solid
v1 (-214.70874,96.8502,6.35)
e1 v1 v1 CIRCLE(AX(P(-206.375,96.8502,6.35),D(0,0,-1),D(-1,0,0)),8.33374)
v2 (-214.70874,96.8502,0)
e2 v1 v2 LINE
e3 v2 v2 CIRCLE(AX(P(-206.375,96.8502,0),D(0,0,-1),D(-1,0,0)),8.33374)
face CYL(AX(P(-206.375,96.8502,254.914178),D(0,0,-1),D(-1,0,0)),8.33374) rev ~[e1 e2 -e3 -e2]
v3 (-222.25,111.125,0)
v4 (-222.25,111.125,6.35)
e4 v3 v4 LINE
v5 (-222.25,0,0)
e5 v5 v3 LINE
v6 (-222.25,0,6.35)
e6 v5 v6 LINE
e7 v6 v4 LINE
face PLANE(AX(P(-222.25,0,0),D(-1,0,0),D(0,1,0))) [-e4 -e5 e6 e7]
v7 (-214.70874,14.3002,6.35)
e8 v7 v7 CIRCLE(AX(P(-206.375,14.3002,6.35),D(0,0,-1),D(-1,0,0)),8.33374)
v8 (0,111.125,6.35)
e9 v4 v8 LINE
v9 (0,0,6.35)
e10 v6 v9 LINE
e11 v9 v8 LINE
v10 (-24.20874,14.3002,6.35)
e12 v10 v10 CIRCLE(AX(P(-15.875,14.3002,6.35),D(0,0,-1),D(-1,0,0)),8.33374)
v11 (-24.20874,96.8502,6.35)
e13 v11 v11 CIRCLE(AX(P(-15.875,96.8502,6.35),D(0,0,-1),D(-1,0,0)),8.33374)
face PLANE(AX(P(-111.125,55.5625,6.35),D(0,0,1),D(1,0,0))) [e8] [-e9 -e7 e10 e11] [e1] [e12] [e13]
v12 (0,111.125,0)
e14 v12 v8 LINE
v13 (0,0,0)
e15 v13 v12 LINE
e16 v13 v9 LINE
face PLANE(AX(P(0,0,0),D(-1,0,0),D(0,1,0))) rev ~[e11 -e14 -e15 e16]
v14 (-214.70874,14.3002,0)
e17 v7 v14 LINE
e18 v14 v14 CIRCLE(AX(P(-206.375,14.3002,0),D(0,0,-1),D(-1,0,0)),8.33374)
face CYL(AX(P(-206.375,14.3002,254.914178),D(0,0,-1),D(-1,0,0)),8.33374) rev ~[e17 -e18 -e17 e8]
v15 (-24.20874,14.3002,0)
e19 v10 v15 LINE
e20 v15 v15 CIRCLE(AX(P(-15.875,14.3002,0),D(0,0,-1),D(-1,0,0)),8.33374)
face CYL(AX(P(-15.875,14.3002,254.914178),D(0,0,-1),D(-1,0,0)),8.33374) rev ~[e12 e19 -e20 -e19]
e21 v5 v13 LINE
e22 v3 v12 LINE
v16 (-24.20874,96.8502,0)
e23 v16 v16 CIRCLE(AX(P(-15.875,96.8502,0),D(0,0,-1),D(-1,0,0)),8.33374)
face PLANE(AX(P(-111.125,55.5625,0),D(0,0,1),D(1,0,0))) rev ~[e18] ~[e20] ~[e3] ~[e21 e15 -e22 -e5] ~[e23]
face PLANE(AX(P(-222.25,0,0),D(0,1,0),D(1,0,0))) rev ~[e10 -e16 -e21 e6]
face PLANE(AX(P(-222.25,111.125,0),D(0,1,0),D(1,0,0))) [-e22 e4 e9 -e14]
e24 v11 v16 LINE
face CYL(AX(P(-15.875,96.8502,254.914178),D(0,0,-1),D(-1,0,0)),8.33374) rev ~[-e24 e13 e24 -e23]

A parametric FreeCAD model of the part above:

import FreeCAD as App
import Part
import Sketcher

V = App.Vector
Q = App.Units.Quantity

doc = App.newDocument("Part")
body = doc.addObject("PartDesign::Body", "Body")

# Sketch on XY plane
sketch1 = body.newObject("Sketcher::SketchObject", "Sketch")
sketch1.AttachmentSupport = (doc.getObject("XY_Plane"), [""])
sketch1.MapMode = "FlatFace"
sketch1.addGeometry(Part.LineSegment(V(-222, 111, 0), V(-222, 0, 0)), False)
sketch1.addGeometry(Part.LineSegment(V(-222, 0, 0), V(0, 0, 0)), False)
sketch1.addGeometry(Part.LineSegment(V(0, 0, 0), V(0, 111, 0)), False)
sketch1.addGeometry(Part.LineSegment(V(0, 111, 0), V(-222, 111, 0)), False)
sketch1.addConstraint(Sketcher.Constraint("Coincident", 0, 2, 1, 1))
sketch1.addConstraint(Sketcher.Constraint("Coincident", 1, 2, 2, 1))
sketch1.addConstraint(Sketcher.Constraint("Coincident", 2, 2, 3, 1))
sketch1.addConstraint(Sketcher.Constraint("Coincident", 3, 2, 0, 1))
sketch1.addConstraint(Sketcher.Constraint("Vertical", 0))
sketch1.addConstraint(Sketcher.Constraint("Horizontal", 1))
sketch1.addConstraint(Sketcher.Constraint("Vertical", 2))
sketch1.addConstraint(Sketcher.Constraint("Horizontal", 3))
sketch1.addConstraint(Sketcher.Constraint("Coincident", 1, 2, -1, 1))
sketch1.addConstraint(Sketcher.Constraint("DistanceX", 1, 1, 1, 2, Q("8.75 in")))
sketch1.addConstraint(Sketcher.Constraint("DistanceY", 0, 2, 0, 1, Q("4.375 in")))
pad1 = body.newObject("PartDesign::Pad", "Pad")
pad1.Profile = sketch1
pad1.Length = Q("0.25 in")

# Sketch on XY plane
sketch2 = body.newObject("Sketcher::SketchObject", "Sketch001")
sketch2.AttachmentSupport = (doc.getObject("XY_Plane"), [""])
sketch2.MapMode = "FlatFace"
sketch2.AttachmentOffset = App.Placement(V(0, 0, 0.25 * 25.4), App.Rotation())
sketch2.addGeometry(Part.Circle(V(-206, 97, 0), V(0, 0, 1), 8), False)
sketch2.addGeometry(Part.Circle(V(-16, 97, 0), V(0, 0, 1), 8), False)
sketch2.addGeometry(Part.Circle(V(-16, 14, 0), V(0, 0, 1), 8), False)
sketch2.addGeometry(Part.Circle(V(-206, 14, 0), V(0, 0, 1), 8), False)
sketch2.addConstraint(Sketcher.Constraint("Equal", 0, 1))
sketch2.addConstraint(Sketcher.Constraint("Equal", 1, 2))
sketch2.addConstraint(Sketcher.Constraint("Equal", 2, 3))
sketch2.addConstraint(Sketcher.Constraint("Horizontal", 0, 3, 1, 3))
sketch2.addConstraint(Sketcher.Constraint("Horizontal", 2, 3, 3, 3))
sketch2.addConstraint(Sketcher.Constraint("Vertical", 1, 3, 2, 3))
sketch2.addConstraint(Sketcher.Constraint("Vertical", 0, 3, 3, 3))
sketch2.addConstraint(Sketcher.Constraint("Diameter", 0, Q("0.6562 in")))
sketch2.addConstraint(Sketcher.Constraint("DistanceX", 0, 3, 1, 3, Q("7.5 in")))
sketch2.addConstraint(Sketcher.Constraint("DistanceY", 2, 3, 1, 3, Q("3.25 in")))
sketch2.addConstraint(Sketcher.Constraint("DistanceX", 0, 3, -1, 1, Q("8.125 in")))
sketch2.addConstraint(Sketcher.Constraint("DistanceY", -1, 1, 0, 3, Q("3.813 in")))
doc.recompute()
hole = body.newObject("PartDesign::Hole", "Hole")
hole.Profile = sketch2
hole.ThreadType = "None"
hole.Diameter = Q("0.6562 in")
hole.DepthType = "ThroughAll"

doc.recompute()
